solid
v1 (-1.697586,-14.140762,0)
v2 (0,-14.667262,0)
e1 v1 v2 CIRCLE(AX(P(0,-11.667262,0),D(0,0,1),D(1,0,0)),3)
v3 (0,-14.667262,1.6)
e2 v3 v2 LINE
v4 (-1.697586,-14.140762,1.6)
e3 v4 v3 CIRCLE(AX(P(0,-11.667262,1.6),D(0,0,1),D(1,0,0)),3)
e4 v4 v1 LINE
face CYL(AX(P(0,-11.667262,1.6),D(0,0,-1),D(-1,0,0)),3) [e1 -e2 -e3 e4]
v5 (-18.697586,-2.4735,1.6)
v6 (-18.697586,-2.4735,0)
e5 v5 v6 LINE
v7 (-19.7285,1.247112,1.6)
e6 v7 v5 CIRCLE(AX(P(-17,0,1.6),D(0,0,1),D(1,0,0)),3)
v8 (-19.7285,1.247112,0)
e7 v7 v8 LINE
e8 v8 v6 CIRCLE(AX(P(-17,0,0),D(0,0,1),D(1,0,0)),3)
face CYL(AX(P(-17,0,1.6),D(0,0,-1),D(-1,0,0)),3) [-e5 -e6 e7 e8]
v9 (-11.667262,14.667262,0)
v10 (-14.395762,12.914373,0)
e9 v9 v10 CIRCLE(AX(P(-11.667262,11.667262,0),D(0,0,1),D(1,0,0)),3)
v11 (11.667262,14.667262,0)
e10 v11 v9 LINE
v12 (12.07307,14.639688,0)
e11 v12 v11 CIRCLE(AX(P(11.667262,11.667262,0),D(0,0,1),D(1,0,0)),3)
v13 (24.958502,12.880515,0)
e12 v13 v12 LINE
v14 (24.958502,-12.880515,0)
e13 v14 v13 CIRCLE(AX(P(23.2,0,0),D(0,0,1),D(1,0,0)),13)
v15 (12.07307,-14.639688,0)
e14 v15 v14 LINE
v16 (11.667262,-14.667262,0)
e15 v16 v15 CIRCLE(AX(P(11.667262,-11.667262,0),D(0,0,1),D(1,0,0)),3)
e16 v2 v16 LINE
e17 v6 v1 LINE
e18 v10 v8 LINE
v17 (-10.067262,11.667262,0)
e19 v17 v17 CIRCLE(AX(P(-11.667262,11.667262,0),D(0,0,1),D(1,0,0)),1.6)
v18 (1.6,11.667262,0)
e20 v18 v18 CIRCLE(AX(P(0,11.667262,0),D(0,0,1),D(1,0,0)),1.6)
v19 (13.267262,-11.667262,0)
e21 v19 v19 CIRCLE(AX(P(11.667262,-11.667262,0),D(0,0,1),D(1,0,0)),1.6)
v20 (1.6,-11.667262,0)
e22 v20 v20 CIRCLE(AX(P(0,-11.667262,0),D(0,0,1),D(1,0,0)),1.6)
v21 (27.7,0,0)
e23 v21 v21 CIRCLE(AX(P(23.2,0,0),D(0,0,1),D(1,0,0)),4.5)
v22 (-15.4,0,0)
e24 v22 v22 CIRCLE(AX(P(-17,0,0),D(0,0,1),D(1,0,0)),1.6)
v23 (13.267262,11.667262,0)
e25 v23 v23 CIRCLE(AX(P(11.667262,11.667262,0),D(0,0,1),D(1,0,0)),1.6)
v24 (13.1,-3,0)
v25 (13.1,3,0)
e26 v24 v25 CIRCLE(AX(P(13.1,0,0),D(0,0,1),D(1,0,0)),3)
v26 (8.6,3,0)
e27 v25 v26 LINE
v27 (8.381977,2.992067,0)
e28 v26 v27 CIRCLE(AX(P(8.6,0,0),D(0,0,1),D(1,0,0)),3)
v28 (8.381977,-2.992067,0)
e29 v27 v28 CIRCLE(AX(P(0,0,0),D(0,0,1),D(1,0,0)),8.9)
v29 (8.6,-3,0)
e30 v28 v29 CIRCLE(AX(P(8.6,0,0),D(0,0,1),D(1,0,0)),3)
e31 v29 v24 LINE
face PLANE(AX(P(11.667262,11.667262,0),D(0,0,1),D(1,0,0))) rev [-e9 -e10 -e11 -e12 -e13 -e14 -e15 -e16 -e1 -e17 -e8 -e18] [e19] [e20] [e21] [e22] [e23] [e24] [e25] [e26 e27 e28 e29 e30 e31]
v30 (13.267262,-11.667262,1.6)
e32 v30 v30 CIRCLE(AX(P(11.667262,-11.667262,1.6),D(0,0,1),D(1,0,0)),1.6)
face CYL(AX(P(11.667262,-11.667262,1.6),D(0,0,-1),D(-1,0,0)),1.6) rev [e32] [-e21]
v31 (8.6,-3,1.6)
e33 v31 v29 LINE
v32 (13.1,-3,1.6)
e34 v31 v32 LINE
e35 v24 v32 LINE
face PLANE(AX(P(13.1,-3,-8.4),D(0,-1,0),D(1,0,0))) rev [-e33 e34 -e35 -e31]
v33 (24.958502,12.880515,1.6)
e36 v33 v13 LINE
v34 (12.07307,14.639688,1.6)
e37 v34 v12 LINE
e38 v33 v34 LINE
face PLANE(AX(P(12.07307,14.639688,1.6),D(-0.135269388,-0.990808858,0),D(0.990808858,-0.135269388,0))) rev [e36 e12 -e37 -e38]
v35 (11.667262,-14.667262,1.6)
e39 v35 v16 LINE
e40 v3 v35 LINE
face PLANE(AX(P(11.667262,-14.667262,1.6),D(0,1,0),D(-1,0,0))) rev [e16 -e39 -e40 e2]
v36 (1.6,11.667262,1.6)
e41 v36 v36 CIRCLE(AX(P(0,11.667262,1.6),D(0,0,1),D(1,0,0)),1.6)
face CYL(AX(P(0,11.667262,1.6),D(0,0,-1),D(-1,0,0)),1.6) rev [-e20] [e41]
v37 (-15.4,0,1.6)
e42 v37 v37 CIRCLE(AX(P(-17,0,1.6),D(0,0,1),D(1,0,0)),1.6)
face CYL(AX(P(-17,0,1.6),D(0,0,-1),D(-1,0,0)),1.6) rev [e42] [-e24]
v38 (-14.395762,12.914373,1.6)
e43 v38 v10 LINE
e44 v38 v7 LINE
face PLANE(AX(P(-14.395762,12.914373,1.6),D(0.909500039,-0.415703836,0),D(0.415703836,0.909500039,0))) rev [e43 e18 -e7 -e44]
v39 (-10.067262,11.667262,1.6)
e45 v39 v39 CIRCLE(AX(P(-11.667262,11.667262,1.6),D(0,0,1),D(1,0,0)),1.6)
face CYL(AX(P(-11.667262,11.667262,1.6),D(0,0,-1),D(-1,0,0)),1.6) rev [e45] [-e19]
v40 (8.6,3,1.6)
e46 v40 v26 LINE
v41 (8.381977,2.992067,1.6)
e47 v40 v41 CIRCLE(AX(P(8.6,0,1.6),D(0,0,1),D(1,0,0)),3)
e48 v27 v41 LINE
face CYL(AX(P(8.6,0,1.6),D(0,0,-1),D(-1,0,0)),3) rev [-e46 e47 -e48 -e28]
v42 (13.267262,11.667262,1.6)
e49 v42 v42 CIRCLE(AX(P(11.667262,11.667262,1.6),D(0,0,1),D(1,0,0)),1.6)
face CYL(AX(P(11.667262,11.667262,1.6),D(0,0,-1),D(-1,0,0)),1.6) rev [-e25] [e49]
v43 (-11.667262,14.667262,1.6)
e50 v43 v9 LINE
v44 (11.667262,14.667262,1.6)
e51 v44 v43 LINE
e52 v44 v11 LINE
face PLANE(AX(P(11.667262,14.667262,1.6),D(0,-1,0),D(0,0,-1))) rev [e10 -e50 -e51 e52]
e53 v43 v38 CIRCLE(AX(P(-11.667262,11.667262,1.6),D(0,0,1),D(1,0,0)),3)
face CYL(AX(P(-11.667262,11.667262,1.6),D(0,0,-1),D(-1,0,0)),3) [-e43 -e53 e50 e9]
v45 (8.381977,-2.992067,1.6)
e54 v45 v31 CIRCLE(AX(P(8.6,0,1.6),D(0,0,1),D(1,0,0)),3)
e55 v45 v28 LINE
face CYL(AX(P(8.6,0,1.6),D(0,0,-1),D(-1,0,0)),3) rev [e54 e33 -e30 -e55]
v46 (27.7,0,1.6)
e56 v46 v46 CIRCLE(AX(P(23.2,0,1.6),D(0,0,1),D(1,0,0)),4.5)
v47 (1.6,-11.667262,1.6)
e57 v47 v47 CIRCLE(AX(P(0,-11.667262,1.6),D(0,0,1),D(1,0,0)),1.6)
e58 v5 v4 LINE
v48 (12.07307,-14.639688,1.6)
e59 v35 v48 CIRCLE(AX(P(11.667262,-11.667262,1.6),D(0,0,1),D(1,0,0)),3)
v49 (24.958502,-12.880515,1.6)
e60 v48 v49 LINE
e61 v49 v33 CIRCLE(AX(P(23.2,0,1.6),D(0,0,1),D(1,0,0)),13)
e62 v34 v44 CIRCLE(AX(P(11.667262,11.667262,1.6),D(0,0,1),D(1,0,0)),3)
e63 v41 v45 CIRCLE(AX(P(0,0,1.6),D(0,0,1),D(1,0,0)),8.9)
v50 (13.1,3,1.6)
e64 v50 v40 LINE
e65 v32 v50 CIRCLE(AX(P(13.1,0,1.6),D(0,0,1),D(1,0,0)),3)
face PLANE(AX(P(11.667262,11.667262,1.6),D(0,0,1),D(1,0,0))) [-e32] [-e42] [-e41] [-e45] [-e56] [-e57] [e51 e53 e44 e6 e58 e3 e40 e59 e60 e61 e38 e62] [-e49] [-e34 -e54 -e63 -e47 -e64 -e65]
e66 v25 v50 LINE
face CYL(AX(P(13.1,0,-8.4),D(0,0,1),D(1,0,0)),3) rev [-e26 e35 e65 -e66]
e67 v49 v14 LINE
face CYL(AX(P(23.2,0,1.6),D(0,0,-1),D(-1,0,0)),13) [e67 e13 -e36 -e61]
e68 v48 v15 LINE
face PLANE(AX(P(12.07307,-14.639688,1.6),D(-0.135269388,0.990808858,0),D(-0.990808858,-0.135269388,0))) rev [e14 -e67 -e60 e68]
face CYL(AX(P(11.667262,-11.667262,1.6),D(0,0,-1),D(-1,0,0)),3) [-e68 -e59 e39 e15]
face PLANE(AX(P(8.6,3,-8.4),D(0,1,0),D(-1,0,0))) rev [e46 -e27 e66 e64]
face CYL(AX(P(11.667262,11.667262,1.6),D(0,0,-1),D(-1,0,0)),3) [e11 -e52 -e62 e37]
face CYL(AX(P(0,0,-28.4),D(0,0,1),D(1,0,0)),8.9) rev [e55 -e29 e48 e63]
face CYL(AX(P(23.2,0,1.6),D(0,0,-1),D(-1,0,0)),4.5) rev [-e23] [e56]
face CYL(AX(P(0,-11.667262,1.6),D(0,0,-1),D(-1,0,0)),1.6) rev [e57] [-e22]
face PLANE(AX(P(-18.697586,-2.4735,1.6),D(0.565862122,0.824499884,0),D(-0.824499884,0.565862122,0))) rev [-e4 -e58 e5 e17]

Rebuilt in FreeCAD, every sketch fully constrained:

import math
import FreeCAD as App
import Part
import Sketcher

V = App.Vector
Q = App.Units.Quantity

doc = App.newDocument("Part")
body = doc.addObject("PartDesign::Body", "Body")

# Sketch on XY plane
sketch1 = body.newObject("Sketcher::SketchObject", "Sketch")
sketch1.AttachmentSupport = (doc.getObject("XY_Plane"), [""])
sketch1.MapMode = "FlatFace"
sketch1.addGeometry([
    Part.LineSegment(V(24.96, 12.88, 0), V(12.07, 14.64, 0)),  # 0
    Part.ArcOfCircle(Part.Circle(V(11.67, 11.67, 0), V(0, 0, 1), 3), math.radians(82.23), math.radians(90)),  # 1
    Part.LineSegment(V(11.67, 14.67, 0), V(-11.67, 14.67, 0)),  # 2
    Part.ArcOfCircle(Part.Circle(V(-11.67, 11.67, 0), V(0, 0, 1), 3), math.radians(90), math.radians(155)),  # 3
    Part.LineSegment(V(-14.4, 12.91, 0), V(-19.73, 1.25, 0)),  # 4
    Part.ArcOfCircle(Part.Circle(V(-17, 0, 0), V(0, 0, 1), 3), math.radians(155), math.radians(236)),  # 5
    Part.LineSegment(V(-18.7, -2.47, 0), V(-1.7, -14.14, 0)),  # 6
    Part.ArcOfCircle(Part.Circle(V(0, -11.67, 0), V(0, 0, 1), 3), math.radians(-124), math.radians(-90)),  # 7
    Part.LineSegment(V(0, -14.67, 0), V(11.67, -14.67, 0)),  # 8
    Part.ArcOfCircle(Part.Circle(V(11.67, -11.67, 0), V(0, 0, 1), 3), math.radians(-90), math.radians(-82.23)),  # 9
    Part.LineSegment(V(12.07, -14.64, 0), V(24.96, -12.88, 0)),  # 10
    Part.ArcOfCircle(Part.Circle(V(23.2, 0, 0), V(0, 0, 1), 13), math.radians(-82), math.radians(82)),  # 11
    Part.Circle(V(11.67, -11.67, 0), V(0, 0, 1), 1.6),  # 12
    Part.Circle(V(0, -11.67, 0), V(0, 0, 1), 1.6),  # 13
    Part.Circle(V(23.2, 0, 0), V(0, 0, 1), 4.5),  # 14
    Part.Circle(V(8.6, 0, 0), V(0, 0, 1), 3),  # 15
    Part.Circle(V(11.67, 11.67, 0), V(0, 0, 1), 1.6),  # 16
    Part.Circle(V(0, 0, 0), V(0, 0, 1), 3),  # 17
    Part.Circle(V(-17, 0, 0), V(0, 0, 1), 1.6),  # 18
    Part.Circle(V(0, 11.67, 0), V(0, 0, 1), 1.6),  # 19
    Part.Circle(V(-11.67, 11.67, 0), V(0, 0, 1), 1.6),  # 20
], False)
sketch1.addConstraint([
    Sketcher.Constraint("Tangent", 0, 2, 1, 1),
    Sketcher.Constraint("Tangent", 1, 2, 2, 1),
    Sketcher.Constraint("Tangent", 2, 2, 3, 1),
    Sketcher.Constraint("Tangent", 3, 2, 4, 1),
    Sketcher.Constraint("Tangent", 4, 2, 5, 1),
    Sketcher.Constraint("Tangent", 5, 2, 6, 1),
    Sketcher.Constraint("Tangent", 6, 2, 7, 1),
    Sketcher.Constraint("Tangent", 7, 2, 8, 1),
    Sketcher.Constraint("Tangent", 8, 2, 9, 1),
    Sketcher.Constraint("Tangent", 9, 2, 10, 1),
    Sketcher.Constraint("Tangent", 10, 2, 11, 1),
    Sketcher.Constraint("Tangent", 11, 2, 0, 1),
    Sketcher.Constraint("Horizontal", 2),
    Sketcher.Constraint("Horizontal", 8),
    Sketcher.Constraint("Coincident", 17, 3, -1, 1),
    Sketcher.Constraint("Coincident", 12, 3, 9, 3),
    Sketcher.Constraint("Coincident", 13, 3, 7, 3),
    Sketcher.Constraint("Coincident", 14, 3, 11, 3),
    Sketcher.Constraint("Coincident", 16, 3, 1, 3),
    Sketcher.Constraint("Coincident", 18, 3, 5, 3),
    Sketcher.Constraint("Coincident", 20, 3, 3, 3),
    Sketcher.Constraint("Equal", 1, 3),
    Sketcher.Constraint("Equal", 3, 5),
    Sketcher.Constraint("Equal", 5, 7),
    Sketcher.Constraint("Equal", 7, 9),
    Sketcher.Constraint("Equal", 12, 13),
    Sketcher.Constraint("Equal", 9, 15),
    Sketcher.Constraint("Equal", 13, 16),
    Sketcher.Constraint("Equal", 15, 17),
    Sketcher.Constraint("Equal", 16, 18),
    Sketcher.Constraint("Equal", 18, 19),
    Sketcher.Constraint("Equal", 19, 20),
    Sketcher.Constraint("Symmetric", 3, 3, 9, 3, -1, 1),
    Sketcher.Constraint("Symmetric", 7, 3, 19, 3, -1, 1),
    Sketcher.Constraint("Symmetric", 0, 2, 9, 2, -1),
    Sketcher.Constraint("PointOnObject", 5, 3, -1),
    Sketcher.Constraint("PointOnObject", 7, 3, -2),
    Sketcher.Constraint("PointOnObject", 15, 3, -1),
    Sketcher.Constraint("Diameter", 14, Q("9 mm")),
    Sketcher.Constraint("Diameter", 15, Q("6 mm")),
    Sketcher.Constraint("Radius", 11, Q("13 mm")),
    Sketcher.Constraint("Diameter", 12, Q("3.2 mm")),
    Sketcher.Constraint("DistanceX", 5, 3, -1, 1, Q("17 mm")),
    Sketcher.Constraint("DistanceX", -1, 1, 11, 3, Q("23.2 mm")),
    Sketcher.Constraint("DistanceX", -1, 1, 15, 3, Q("8.6 mm")),
    Sketcher.Constraint("DistanceX", 8, 1, 8, 2, Q("11.667262 mm")),
    Sketcher.Constraint("DistanceX", 4, 2, -1, 1, Q("19.7285 mm")),
])
pad1 = body.newObject("PartDesign::Pad", "Pad")
pad1.Profile = sketch1
pad1.Length = 1.6

# Sketch on XY plane
sketch2 = body.newObject("Sketcher::SketchObject", "Sketch001")
sketch2.AttachmentSupport = (doc.getObject("XY_Plane"), [""])
sketch2.MapMode = "FlatFace"
sketch2.AttachmentOffset = App.Placement(V(0, 0, 1.6), App.Rotation())
sketch2.addGeometry([
    Part.LineSegment(V(13.1, 3, 0), V(8.6, 3, 0)),
    Part.ArcOfCircle(Part.Circle(V(8.6, 0, 0), V(0, 0, 1), 3), math.radians(90), math.radians(270)),
    Part.LineSegment(V(8.6, -3, 0), V(13.1, -3, 0)),
    Part.ArcOfCircle(Part.Circle(V(13.1, 0, 0), V(0, 0, 1), 3), math.radians(-90), math.radians(90)),
], False)
sketch2.addConstraint([
    Sketcher.Constraint("Tangent", 0, 2, 1, 1),
    Sketcher.Constraint("Tangent", 1, 2, 2, 1),
    Sketcher.Constraint("Tangent", 2, 2, 3, 1),
    Sketcher.Constraint("Tangent", 3, 2, 0, 1),
    Sketcher.Constraint("Horizontal", 0),
    Sketcher.Constraint("Horizontal", 2),
    Sketcher.Constraint("PointOnObject", 1, 3, -1),
    Sketcher.Constraint("Radius", 1, Q("3 mm")),
    Sketcher.Constraint("DistanceX", 0, 2, 0, 1, Q("4.5 mm")),
    Sketcher.Constraint("DistanceX", -1, 1, 1, 3, Q("8.6 mm")),
])
pocket1 = body.newObject("PartDesign::Pocket", "Pocket")
pocket1.Profile = sketch2
pocket1.Length = 10

# Sketch on XY plane
sketch3 = body.newObject("Sketcher::SketchObject", "Sketch002")
sketch3.AttachmentSupport = (doc.getObject("XY_Plane"), [""])
sketch3.MapMode = "FlatFace"
sketch3.AttachmentOffset = App.Placement(V(0, 0, 1.6), App.Rotation())
sketch3.addGeometry(Part.Circle(V(0, 0, 0), V(0, 0, 1), 9), False)
sketch3.addConstraint([
    Sketcher.Constraint("Coincident", 0, 3, -1, 1),
    Sketcher.Constraint("Diameter", 0, Q("17.8 mm")),
])
pocket2 = body.newObject("PartDesign::Pocket", "Pocket001")
pocket2.Profile = sketch3
pocket2.Length = 30

doc.recompute()
